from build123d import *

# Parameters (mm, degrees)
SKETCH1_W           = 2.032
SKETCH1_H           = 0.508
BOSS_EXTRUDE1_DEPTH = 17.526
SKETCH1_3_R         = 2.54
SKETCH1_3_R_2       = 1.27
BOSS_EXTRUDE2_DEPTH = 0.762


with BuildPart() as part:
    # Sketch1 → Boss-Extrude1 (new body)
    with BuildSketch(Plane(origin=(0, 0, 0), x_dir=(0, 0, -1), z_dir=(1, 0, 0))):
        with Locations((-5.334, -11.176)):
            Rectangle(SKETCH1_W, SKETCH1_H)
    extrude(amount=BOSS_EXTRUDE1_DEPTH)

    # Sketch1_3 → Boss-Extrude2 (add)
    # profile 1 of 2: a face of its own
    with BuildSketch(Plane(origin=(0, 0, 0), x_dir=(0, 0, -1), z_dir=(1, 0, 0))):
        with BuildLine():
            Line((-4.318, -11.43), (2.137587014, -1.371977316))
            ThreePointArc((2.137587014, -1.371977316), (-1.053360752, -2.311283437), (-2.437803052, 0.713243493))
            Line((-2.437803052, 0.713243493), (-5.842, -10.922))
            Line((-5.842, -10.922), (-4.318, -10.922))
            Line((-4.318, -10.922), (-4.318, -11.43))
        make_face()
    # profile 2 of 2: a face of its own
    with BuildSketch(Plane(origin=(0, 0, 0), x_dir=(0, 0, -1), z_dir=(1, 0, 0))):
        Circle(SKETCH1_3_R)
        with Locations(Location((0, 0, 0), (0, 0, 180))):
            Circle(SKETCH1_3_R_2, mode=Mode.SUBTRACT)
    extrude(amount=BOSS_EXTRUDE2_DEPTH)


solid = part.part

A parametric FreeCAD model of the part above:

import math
import FreeCAD as App
import Part
import Sketcher

V = App.Vector
Q = App.Units.Quantity


def add_polygon(sketch, points):
    """Adds a closed chain of lines whose ends are joined by coincident constraints."""
    first, n = sketch.GeometryCount, len(points)
    for a, b in zip(points, points[1:] + points[:1]):
        sketch.addGeometry(Part.LineSegment(App.Vector(*a, 0), App.Vector(*b, 0)), False)
    for i in range(n):
        sketch.addConstraint(Sketcher.Constraint("Coincident", first + i, 2, first + (i + 1) % n, 1))

doc = App.newDocument("Part")
body = doc.addObject("PartDesign::Body", "Body")

# Sketch on YZ plane
sketch1 = body.newObject("Sketcher::SketchObject", "Sketch")
sketch1.AttachmentSupport = (doc.getObject("YZ_Plane"), [""])
sketch1.MapMode = "FlatFace"
add_polygon(sketch1, [(-10.9, 6.3), (-11.4, 6.3), (-11.4, 4.3), (-10.9, 4.3)])  # lines 0-3
sketch1.addConstraint(Sketcher.Constraint("Horizontal", 0))
sketch1.addConstraint(Sketcher.Constraint("Vertical", 1))
sketch1.addConstraint(Sketcher.Constraint("Horizontal", 2))
sketch1.addConstraint(Sketcher.Constraint("Vertical", 3))
sketch1.addConstraint(Sketcher.Constraint("DistanceX", 0, 2, 0, 1, Q("0.02 in")))
sketch1.addConstraint(Sketcher.Constraint("DistanceY", 1, 2, 1, 1, Q("0.08 in")))
sketch1.addConstraint(Sketcher.Constraint("DistanceX", 0, 2, -1, 1, Q("0.45 in")))
sketch1.addConstraint(Sketcher.Constraint("DistanceY", -1, 1, 0, 2, Q("0.25 in")))
pad1 = body.newObject("PartDesign::Pad", "Pad")
pad1.Profile = sketch1
pad1.Length = Q("0.69 in")

# Sketch on YZ plane
sketch2 = body.newObject("Sketcher::SketchObject", "Sketch001")
sketch2.AttachmentSupport = (doc.getObject("YZ_Plane"), [""])
sketch2.MapMode = "FlatFace"
sketch2.addGeometry(Part.LineSegment(V(-11.4, 4.3, 0), V(-1.4, -2.1, 0)), False)
sketch2.addGeometry(Part.ArcOfCircle(Part.Circle(V(0, 0, 0), V(0, 0, 1), 2.5), math.radians(-123), math.radians(74)), False)
sketch2.addGeometry(Part.LineSegment(V(0.7, 2.4, 0), V(-10.9, 5.8, 0)), False)
sketch2.addGeometry(Part.LineSegment(V(-10.9, 5.8, 0), V(-10.9, 4.3, 0)), False)
sketch2.addGeometry(Part.LineSegment(V(-10.9, 4.3, 0), V(-11.4, 4.3, 0)), False)
sketch2.addGeometry(Part.Circle(V(0, 0, 0), V(0, 0, 1), 1.3), False)
sketch2.addConstraint(Sketcher.Constraint("Tangent", 0, 2, 1, 1))
sketch2.addConstraint(Sketcher.Constraint("Tangent", 1, 2, 2, 1))
sketch2.addConstraint(Sketcher.Constraint("Coincident", 2, 2, 3, 1))
sketch2.addConstraint(Sketcher.Constraint("Coincident", 3, 2, 4, 1))
sketch2.addConstraint(Sketcher.Constraint("Coincident", 4, 2, 0, 1))
sketch2.addConstraint(Sketcher.Constraint("Vertical", 3))
sketch2.addConstraint(Sketcher.Constraint("Horizontal", 4))
sketch2.addConstraint(Sketcher.Constraint("Coincident", 1, 3, -1, 1))
sketch2.addConstraint(Sketcher.Constraint("Coincident", 5, 3, -1, 1))
sketch2.addConstraint(Sketcher.Constraint("Diameter", 5, Q("0.1 in")))
sketch2.addConstraint(Sketcher.Constraint("Radius", 1, Q("0.1 in")))
sketch2.addConstraint(Sketcher.Constraint("DistanceX", 4, 2, 4, 1, Q("0.02 in")))
sketch2.addConstraint(Sketcher.Constraint("DistanceY", 3, 2, 3, 1, Q("0.06 in")))
sketch2.addConstraint(Sketcher.Constraint("DistanceX", 2, 2, -1, 1, Q("0.43 in")))
sketch2.addConstraint(Sketcher.Constraint("DistanceY", -1, 1, 2, 2, Q("0.23 in")))
pad2 = body.newObject("PartDesign::Pad", "Pad001")
pad2.Profile = sketch2
pad2.Length = Q("0.03 in")

doc.recompute()
